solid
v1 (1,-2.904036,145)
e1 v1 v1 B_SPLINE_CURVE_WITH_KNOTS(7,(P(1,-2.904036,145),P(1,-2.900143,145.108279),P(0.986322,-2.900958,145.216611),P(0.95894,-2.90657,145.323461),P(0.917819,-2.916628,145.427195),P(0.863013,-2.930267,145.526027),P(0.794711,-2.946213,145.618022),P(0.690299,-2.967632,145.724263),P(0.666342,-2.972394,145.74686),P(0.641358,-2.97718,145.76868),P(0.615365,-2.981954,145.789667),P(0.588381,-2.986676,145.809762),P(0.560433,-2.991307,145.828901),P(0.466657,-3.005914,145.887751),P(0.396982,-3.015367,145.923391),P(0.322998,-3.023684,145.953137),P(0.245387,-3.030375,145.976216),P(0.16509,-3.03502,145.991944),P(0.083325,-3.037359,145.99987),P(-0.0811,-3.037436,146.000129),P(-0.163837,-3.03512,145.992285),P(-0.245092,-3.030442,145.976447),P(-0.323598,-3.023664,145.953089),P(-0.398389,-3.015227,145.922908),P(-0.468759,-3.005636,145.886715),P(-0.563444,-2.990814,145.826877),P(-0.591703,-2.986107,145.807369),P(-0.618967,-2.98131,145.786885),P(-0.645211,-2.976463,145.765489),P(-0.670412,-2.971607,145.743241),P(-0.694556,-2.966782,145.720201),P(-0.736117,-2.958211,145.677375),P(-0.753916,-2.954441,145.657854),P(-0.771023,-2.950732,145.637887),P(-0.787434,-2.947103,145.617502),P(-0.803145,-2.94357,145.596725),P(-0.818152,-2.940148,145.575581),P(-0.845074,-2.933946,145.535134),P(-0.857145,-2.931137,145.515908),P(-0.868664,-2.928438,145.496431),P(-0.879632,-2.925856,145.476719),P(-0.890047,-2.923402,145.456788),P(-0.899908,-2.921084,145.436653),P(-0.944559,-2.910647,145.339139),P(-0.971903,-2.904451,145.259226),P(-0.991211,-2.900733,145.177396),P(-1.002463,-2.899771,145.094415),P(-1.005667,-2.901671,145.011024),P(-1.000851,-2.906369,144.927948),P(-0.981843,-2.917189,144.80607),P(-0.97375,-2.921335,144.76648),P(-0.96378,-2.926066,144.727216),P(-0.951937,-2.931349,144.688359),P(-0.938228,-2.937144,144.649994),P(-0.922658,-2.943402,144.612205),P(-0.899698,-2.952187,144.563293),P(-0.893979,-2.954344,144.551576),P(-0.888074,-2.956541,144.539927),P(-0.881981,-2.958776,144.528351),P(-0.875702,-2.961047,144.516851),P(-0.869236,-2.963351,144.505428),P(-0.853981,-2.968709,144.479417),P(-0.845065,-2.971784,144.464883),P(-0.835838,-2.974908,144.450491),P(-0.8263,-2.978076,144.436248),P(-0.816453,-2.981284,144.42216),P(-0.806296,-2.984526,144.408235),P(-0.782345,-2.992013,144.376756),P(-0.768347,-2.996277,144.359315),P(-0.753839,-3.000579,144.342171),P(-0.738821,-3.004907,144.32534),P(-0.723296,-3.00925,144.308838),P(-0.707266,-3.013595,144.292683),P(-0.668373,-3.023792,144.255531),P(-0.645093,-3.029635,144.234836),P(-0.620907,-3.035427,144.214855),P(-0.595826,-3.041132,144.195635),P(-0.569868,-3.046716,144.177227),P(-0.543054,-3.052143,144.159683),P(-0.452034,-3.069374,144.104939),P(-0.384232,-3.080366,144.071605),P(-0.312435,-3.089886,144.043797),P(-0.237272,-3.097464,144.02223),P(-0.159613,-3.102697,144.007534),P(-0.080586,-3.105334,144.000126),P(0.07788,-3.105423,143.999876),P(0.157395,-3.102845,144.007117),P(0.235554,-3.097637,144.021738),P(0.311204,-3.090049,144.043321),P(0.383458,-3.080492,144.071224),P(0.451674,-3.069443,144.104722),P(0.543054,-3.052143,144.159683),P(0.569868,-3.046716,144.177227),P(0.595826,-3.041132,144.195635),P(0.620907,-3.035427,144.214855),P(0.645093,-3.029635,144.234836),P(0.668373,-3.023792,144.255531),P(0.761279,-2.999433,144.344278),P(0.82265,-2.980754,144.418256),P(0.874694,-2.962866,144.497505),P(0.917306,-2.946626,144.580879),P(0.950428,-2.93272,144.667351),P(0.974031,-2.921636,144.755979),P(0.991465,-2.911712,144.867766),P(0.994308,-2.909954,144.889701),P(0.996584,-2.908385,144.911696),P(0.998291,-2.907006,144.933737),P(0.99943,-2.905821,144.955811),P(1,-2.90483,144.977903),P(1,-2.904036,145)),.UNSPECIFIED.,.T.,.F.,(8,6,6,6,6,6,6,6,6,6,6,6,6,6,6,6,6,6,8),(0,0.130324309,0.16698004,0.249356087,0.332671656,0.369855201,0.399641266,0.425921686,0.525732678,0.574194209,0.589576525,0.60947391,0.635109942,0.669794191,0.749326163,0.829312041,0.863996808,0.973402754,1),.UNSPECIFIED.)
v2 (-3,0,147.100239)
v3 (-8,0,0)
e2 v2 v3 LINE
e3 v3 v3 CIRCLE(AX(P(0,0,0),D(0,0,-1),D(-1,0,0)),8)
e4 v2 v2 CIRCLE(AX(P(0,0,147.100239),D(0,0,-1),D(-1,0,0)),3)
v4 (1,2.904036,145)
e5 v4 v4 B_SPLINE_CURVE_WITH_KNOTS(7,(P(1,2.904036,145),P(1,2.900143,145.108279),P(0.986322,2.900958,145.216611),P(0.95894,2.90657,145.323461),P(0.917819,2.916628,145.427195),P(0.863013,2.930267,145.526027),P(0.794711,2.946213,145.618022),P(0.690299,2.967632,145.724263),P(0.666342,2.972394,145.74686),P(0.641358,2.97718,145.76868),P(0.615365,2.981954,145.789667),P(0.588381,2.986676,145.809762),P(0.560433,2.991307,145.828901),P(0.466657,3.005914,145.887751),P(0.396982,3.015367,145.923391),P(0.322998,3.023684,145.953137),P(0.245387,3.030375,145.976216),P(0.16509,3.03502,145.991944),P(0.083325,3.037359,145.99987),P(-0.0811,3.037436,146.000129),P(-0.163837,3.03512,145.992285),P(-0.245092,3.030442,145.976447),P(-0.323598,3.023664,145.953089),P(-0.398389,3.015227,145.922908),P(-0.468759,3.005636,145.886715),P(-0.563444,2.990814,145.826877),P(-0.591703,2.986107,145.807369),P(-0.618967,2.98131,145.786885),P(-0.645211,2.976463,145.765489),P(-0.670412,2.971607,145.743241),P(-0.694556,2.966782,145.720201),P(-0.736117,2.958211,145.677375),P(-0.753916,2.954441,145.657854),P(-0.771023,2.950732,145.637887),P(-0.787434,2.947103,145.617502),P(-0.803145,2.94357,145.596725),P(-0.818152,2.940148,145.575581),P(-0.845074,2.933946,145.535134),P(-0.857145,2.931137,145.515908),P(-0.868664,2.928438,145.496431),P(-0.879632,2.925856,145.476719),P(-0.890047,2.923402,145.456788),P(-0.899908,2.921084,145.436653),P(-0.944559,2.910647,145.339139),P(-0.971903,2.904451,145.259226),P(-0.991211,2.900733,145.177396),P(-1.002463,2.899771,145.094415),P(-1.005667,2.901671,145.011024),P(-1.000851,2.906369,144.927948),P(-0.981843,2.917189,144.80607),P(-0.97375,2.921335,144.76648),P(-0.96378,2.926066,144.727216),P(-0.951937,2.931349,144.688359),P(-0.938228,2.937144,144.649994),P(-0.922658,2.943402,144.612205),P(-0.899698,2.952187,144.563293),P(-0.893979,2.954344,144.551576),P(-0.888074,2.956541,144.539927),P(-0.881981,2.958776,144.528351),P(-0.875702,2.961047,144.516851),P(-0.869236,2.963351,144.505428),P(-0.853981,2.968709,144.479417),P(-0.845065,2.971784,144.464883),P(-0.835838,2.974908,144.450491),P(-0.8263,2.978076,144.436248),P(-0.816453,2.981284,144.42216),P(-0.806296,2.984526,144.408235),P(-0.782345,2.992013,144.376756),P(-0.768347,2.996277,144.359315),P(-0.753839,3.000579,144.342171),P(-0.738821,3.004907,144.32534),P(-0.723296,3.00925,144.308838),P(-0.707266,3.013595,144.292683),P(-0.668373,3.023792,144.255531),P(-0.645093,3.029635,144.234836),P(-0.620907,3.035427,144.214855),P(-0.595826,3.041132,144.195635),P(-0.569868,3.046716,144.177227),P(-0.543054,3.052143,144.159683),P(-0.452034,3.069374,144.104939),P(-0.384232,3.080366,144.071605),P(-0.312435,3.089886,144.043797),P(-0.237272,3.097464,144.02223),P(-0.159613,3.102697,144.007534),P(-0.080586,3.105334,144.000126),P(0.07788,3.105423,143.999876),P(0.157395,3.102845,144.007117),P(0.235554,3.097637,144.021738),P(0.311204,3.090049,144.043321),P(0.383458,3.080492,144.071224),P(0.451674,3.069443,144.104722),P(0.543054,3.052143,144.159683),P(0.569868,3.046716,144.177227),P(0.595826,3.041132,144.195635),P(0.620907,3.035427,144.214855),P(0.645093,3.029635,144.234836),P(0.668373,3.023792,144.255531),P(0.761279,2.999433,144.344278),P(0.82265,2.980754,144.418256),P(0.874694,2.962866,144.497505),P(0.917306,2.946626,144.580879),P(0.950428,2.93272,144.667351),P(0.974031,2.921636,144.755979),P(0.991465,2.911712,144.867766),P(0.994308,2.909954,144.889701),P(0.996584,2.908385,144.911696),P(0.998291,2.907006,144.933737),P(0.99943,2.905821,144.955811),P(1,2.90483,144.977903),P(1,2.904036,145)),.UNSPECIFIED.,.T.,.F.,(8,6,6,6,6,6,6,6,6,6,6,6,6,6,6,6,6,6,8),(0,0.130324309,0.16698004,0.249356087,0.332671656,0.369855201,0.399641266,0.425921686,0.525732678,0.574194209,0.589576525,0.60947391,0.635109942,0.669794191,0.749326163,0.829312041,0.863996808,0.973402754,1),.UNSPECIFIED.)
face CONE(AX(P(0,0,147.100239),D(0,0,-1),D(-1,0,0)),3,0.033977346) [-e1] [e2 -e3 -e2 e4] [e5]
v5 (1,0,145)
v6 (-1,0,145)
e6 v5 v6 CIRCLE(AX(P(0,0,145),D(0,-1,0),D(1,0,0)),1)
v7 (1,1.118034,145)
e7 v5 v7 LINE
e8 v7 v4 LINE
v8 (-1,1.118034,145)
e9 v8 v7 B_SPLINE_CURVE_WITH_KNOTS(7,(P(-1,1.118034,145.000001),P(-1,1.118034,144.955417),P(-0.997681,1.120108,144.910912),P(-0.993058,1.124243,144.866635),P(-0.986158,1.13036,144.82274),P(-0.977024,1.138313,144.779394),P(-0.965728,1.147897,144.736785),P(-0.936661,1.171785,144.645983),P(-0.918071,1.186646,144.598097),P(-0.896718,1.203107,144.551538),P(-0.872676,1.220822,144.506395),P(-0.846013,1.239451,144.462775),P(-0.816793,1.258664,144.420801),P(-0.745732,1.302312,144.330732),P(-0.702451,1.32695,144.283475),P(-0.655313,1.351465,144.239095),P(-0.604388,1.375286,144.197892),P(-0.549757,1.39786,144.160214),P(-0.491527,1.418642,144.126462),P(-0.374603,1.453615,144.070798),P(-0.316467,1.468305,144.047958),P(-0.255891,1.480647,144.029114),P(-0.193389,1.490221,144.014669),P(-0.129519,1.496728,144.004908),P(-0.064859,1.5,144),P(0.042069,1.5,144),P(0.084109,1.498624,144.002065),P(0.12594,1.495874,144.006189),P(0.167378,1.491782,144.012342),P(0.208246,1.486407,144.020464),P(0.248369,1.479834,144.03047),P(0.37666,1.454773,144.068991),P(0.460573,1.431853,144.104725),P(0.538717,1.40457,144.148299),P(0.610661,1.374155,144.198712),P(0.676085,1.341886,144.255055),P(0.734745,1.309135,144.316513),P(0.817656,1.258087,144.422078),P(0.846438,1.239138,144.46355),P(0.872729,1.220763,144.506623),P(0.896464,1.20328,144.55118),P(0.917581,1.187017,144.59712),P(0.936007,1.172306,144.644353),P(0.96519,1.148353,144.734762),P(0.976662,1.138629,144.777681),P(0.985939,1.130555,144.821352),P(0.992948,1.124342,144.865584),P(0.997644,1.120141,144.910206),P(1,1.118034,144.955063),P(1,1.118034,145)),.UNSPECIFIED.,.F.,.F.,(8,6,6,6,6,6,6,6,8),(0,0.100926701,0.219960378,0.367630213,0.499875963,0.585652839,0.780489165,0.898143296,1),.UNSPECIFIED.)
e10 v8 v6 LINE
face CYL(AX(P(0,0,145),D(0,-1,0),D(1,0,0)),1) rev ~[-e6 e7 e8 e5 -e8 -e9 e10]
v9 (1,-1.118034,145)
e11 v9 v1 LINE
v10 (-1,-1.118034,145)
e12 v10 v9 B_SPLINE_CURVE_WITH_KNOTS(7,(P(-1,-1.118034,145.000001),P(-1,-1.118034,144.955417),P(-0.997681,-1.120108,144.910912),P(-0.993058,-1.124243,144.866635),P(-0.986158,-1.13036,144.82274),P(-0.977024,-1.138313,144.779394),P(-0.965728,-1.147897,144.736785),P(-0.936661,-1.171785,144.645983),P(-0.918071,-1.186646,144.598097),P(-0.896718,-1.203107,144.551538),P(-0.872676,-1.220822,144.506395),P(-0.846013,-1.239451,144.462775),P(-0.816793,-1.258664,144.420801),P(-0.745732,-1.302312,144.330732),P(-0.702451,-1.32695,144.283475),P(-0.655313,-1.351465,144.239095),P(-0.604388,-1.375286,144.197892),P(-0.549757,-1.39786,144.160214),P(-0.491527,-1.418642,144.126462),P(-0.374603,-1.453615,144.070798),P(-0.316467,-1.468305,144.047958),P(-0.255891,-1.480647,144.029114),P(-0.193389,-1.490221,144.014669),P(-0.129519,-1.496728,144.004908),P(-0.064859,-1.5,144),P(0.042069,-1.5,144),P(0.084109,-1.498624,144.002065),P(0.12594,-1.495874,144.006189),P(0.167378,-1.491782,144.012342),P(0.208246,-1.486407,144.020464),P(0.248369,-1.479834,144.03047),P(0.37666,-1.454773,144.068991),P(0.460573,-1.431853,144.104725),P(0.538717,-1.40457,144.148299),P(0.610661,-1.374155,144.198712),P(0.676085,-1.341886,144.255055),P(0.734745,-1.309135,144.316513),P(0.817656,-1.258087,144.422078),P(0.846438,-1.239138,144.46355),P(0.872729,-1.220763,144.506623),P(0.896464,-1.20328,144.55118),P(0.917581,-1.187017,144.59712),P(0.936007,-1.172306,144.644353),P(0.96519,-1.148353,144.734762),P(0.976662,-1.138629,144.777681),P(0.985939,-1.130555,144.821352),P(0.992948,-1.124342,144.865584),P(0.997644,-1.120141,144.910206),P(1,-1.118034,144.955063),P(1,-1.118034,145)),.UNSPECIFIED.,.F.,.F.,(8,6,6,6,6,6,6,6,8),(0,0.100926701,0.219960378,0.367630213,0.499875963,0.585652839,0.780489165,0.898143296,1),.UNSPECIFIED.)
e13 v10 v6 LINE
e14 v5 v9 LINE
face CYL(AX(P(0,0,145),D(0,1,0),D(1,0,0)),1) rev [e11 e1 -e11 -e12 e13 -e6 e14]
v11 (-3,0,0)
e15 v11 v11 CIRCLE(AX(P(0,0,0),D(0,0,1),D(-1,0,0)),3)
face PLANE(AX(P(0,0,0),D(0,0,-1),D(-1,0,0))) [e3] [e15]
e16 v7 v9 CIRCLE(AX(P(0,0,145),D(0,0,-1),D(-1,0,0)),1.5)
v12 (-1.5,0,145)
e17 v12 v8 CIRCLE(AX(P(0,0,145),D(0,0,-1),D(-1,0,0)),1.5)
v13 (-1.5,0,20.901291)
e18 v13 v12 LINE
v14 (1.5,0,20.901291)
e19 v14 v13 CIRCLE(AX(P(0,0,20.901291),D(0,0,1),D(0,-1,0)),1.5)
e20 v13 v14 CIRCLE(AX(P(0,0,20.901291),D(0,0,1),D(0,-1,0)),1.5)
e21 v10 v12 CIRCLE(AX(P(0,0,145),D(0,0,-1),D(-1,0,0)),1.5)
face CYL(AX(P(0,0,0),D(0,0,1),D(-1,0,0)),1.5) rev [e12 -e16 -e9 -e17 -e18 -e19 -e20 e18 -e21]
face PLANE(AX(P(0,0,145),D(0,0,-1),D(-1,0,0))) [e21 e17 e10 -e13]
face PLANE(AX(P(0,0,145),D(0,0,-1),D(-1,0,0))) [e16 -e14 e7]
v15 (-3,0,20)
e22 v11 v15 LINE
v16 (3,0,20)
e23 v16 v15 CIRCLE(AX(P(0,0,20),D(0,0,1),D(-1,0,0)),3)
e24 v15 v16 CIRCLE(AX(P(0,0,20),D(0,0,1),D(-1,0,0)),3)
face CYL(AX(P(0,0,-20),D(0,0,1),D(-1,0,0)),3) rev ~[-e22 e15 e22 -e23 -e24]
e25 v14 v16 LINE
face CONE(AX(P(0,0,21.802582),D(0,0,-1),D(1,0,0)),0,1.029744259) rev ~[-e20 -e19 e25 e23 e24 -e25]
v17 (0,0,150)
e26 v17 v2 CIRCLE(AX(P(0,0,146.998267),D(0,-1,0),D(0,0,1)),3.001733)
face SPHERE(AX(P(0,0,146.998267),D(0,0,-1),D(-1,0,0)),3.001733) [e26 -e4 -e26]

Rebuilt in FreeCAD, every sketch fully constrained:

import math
import FreeCAD as App
import Part
import Sketcher
from FreeCAD import Vector

doc = App.newDocument("Part")
params = doc.addObject("Spreadsheet::Sheet", "Params")
for row, (alias, value) in enumerate([
    ("sketch1_height", "145 mm"),
    ("sketch1_height2", "5 mm"),
    ("sketch1_width", "6.5 mm"),
    ("sketch1_width2", "1.5 mm"),
    ("revolution_angle", "360 deg"),
    ("sketch2_diameter", "6 mm"),
    ("hole_diameter", "6 mm"),
    ("hole_depth", "20 mm"),
    ("sketch3_diameter", "2 mm"),
], start=1):
    params.set(f"A{row}", alias)
    params.set(f"B{row}", "=" + value)
    params.setAlias(f"B{row}", alias)

body = doc.addObject("PartDesign::Body", "Body")

# Sketch on XZ plane
sketch1 = body.newObject("Sketcher::SketchObject", "Sketch")
sketch1.AttachmentSupport = (doc.getObject("XZ_Plane"), [""])
sketch1.MapMode = "FlatFace"
sketch1.addGeometry(Part.LineSegment(Vector(-8, 0, 0), Vector(-1.5, 0, 0)), False)
sketch1.addGeometry(Part.LineSegment(Vector(-1.5, 0, 0), Vector(-1.5, 145, 0)), False)
sketch1.addGeometry(Part.LineSegment(Vector(-1.5, 145, 0), Vector(0, 145, 0)), False)
sketch1.addGeometry(Part.LineSegment(Vector(0, 145, 0), Vector(0, 150, 0)), False)
sketch1.addGeometry(Part.ArcOfCircle(Part.Circle(Vector(0, 147, 0), Vector(0, 0, 1), 3), math.radians(90), math.radians(178)), False)
sketch1.addGeometry(Part.LineSegment(Vector(-3, 147.1, 0), Vector(-8, 0, 0)), False)
sketch1.addConstraint(Sketcher.Constraint("Coincident", 0, 2, 1, 1))
sketch1.addConstraint(Sketcher.Constraint("Coincident", 1, 2, 2, 1))
sketch1.addConstraint(Sketcher.Constraint("Coincident", 2, 2, 3, 1))
sketch1.addConstraint(Sketcher.Constraint("Coincident", 3, 2, 4, 1))
sketch1.addConstraint(Sketcher.Constraint("Tangent", 4, 2, 5, 1))
sketch1.addConstraint(Sketcher.Constraint("Coincident", 5, 2, 0, 1))
sketch1.addConstraint(Sketcher.Constraint("Horizontal", 0))
sketch1.addConstraint(Sketcher.Constraint("Vertical", 1))
sketch1.addConstraint(Sketcher.Constraint("Horizontal", 2))
sketch1.addConstraint(Sketcher.Constraint("Vertical", 3))
sketch1.addConstraint(Sketcher.Constraint("PointOnObject", 4, 3, -2))
sketch1.addConstraint(Sketcher.Constraint("PointOnObject", 0, 2, -1))
sketch1.addConstraint(Sketcher.Constraint("PointOnObject", 2, 2, -2))
sketch1.addConstraint(Sketcher.Constraint("DistanceY", 1, 1, 1, 2, 145.0))
sketch1.addConstraint(Sketcher.Constraint("DistanceY", 3, 1, 3, 2, 5.0))
sketch1.addConstraint(Sketcher.Constraint("DistanceX", 0, 1, 0, 2, 6.5))
sketch1.addConstraint(Sketcher.Constraint("DistanceX", 2, 1, 2, 2, 1.5))
sketch1.addConstraint(Sketcher.Constraint("DistanceX", 4, 2, -1, 1, 3.0))
sketch1.setExpression("Constraints[13]", "Params.sketch1_height")
sketch1.setExpression("Constraints[14]", "Params.sketch1_height2")
sketch1.setExpression("Constraints[15]", "Params.sketch1_width")
sketch1.setExpression("Constraints[16]", "Params.sketch1_width2")
revolution = body.newObject("PartDesign::Revolution", "Revolution")
revolution.Profile = sketch1
revolution.ReferenceAxis = (sketch1, ["V_Axis"])
revolution.setExpression("Angle", "Params.revolution_angle")

# Sketch on XY plane
sketch2 = body.newObject("Sketcher::SketchObject", "Sketch001")
sketch2.AttachmentSupport = (doc.getObject("XY_Plane"), [""])
sketch2.MapMode = "FlatFace"
sketch2.addGeometry(Part.Circle(Vector(0, 0, 0), Vector(0, 0, 1), 3), False)
sketch2.addConstraint(Sketcher.Constraint("Coincident", 0, 3, -1, 1))
sketch2.addConstraint(Sketcher.Constraint("Diameter", 0, 6.0))
sketch2.setExpression("Constraints[1]", "Params.sketch2_diameter")
doc.recompute()
hole = body.newObject("PartDesign::Hole", "Hole")
hole.Profile = sketch2
hole.ThreadType = "None"
hole.setExpression("Diameter", "Params.hole_diameter")
hole.DepthType = "Dimension"
hole.setExpression("Depth", "Params.hole_depth")
hole.DrillPoint = "Angled"
hole.DrillPointAngle = 118
hole.Reversed = True

# Sketch on XZ plane
sketch3 = body.newObject("Sketcher::SketchObject", "Sketch002")
sketch3.AttachmentSupport = (doc.getObject("XZ_Plane"), [""])
sketch3.MapMode = "FlatFace"
sketch3.addGeometry(Part.Circle(Vector(0, 145, 0), Vector(0, 0, 1), 1), False)
sketch3.addConstraint(Sketcher.Constraint("PointOnObject", 0, 3, -2))
sketch3.addConstraint(Sketcher.Constraint("Diameter", 0, 2.0))
sketch3.addConstraint(Sketcher.Constraint("DistanceY", -1, 1, 0, 3, 145.0))
sketch3.setExpression("Constraints[1]", "Params.sketch3_diameter")
pocket1 = body.newObject("PartDesign::Pocket", "Pocket")
pocket1.Profile = sketch3
pocket1.Type = "ThroughAll"
pocket1.Midplane = True

doc.recompute()
